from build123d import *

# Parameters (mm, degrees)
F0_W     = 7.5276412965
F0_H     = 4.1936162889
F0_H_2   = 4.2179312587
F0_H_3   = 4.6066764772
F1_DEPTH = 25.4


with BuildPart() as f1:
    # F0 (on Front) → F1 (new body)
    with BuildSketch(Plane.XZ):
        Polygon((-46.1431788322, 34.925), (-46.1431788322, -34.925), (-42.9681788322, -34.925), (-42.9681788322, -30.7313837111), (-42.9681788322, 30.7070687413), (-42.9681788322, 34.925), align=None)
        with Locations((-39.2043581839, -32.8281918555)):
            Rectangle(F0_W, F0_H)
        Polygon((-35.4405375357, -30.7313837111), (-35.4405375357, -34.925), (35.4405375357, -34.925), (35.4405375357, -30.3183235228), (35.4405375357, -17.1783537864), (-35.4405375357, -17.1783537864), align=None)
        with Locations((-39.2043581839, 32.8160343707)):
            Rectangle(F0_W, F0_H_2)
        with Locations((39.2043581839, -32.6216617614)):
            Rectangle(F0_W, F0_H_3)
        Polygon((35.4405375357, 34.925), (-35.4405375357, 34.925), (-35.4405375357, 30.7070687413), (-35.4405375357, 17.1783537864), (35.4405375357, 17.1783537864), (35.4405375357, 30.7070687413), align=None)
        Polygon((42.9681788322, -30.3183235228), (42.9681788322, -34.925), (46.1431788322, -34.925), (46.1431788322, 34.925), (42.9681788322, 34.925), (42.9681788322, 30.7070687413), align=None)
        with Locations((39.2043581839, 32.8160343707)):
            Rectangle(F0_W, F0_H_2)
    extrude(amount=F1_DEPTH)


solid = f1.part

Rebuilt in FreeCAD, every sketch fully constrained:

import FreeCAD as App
import Part
import Sketcher
from FreeCAD import Vector
Q = App.Units.Quantity


def add_polygon(sketch, points):
    """Adds a closed chain of lines whose ends are joined by coincident constraints."""
    first, n = sketch.GeometryCount, len(points)
    for a, b in zip(points, points[1:] + points[:1]):
        sketch.addGeometry(Part.LineSegment(App.Vector(*a, 0), App.Vector(*b, 0)), False)
    for i in range(n):
        sketch.addConstraint(Sketcher.Constraint("Coincident", first + i, 2, first + (i + 1) % n, 1))

doc = App.newDocument("Part")
body = doc.addObject("PartDesign::Body", "Body")

# Sketch on XZ plane
sketch1 = body.newObject("Sketcher::SketchObject", "Sketch")
sketch1.AttachmentSupport = (doc.getObject("XZ_Plane"), [""])
sketch1.MapMode = "FlatFace"
add_polygon(sketch1, [(-46.143179, 34.925), (-46.143179, -34.925), (46.143179, -34.925), (46.143179, 34.925), (42.968179, 34.925)])  # lines 0-4
add_polygon(sketch1, [(42.968179, 30.707069), (42.968179, -30.318324), (35.440538, -30.318324), (35.440538, -17.178354), (-35.440538, -17.178354), (-35.440538, -30.731384), (-42.968179, -30.731384), (-42.968179, 30.707069), (-35.440538, 30.707069), (-35.440538, 17.178354), (35.440538, 17.178354), (35.440538, 30.707069)])  # lines 5-16
sketch1.addConstraint([
    Sketcher.Constraint("Vertical", 0),
    Sketcher.Constraint("Horizontal", 1),
    Sketcher.Constraint("Vertical", 2),
    Sketcher.Constraint("Horizontal", 3),
    Sketcher.Constraint("Horizontal", 4),
    Sketcher.Constraint("Vertical", 5),
    Sketcher.Constraint("Horizontal", 6),
    Sketcher.Constraint("Vertical", 7),
    Sketcher.Constraint("Horizontal", 8),
    Sketcher.Constraint("Vertical", 9),
    Sketcher.Constraint("Horizontal", 10),
    Sketcher.Constraint("Vertical", 11),
    Sketcher.Constraint("Horizontal", 12),
    Sketcher.Constraint("Vertical", 13),
    Sketcher.Constraint("Horizontal", 14),
    Sketcher.Constraint("Vertical", 15),
    Sketcher.Constraint("Horizontal", 16),
    Sketcher.Constraint("Symmetric", 0, 2, 2, 2, -1, 1),
    Sketcher.Constraint("Symmetric", 7, 2, 13, 2, -1, 1),
    Sketcher.Constraint("Symmetric", 12, 2, 15, 2, -2),
    Sketcher.Constraint("Vertical", 3, 2, 5, 2),
    Sketcher.Constraint("Vertical", 9, 2, 12, 2),
    Sketcher.Constraint("Equal", 6, 10),
    Sketcher.Constraint("DistanceY", 0, 2, 0, 1, Q("2.75 in")),
    Sketcher.Constraint("DistanceX", 3, 2, 3, 1, Q("0.125 in")),
    Sketcher.Constraint("DistanceX", 6, 2, 6, 1, Q("7.527641 mm")),
    Sketcher.Constraint("DistanceY", 7, 1, 7, 2, Q("13.13997 mm")),
    Sketcher.Constraint("DistanceY", 9, 2, 9, 1, Q("13.55303 mm")),
    Sketcher.Constraint("DistanceX", 1, 1, 1, 2, Q("92.286358 mm")),
    Sketcher.Constraint("DistanceY", 5, 2, 5, 1, Q("61.025392 mm")),
    Sketcher.Constraint("DistanceY", 13, 2, 13, 1, Q("13.528715 mm")),
])
pad1 = body.newObject("PartDesign::Pad", "Pad")
pad1.Profile = sketch1
pad1.Length = Q("1 in")

doc.recompute()
